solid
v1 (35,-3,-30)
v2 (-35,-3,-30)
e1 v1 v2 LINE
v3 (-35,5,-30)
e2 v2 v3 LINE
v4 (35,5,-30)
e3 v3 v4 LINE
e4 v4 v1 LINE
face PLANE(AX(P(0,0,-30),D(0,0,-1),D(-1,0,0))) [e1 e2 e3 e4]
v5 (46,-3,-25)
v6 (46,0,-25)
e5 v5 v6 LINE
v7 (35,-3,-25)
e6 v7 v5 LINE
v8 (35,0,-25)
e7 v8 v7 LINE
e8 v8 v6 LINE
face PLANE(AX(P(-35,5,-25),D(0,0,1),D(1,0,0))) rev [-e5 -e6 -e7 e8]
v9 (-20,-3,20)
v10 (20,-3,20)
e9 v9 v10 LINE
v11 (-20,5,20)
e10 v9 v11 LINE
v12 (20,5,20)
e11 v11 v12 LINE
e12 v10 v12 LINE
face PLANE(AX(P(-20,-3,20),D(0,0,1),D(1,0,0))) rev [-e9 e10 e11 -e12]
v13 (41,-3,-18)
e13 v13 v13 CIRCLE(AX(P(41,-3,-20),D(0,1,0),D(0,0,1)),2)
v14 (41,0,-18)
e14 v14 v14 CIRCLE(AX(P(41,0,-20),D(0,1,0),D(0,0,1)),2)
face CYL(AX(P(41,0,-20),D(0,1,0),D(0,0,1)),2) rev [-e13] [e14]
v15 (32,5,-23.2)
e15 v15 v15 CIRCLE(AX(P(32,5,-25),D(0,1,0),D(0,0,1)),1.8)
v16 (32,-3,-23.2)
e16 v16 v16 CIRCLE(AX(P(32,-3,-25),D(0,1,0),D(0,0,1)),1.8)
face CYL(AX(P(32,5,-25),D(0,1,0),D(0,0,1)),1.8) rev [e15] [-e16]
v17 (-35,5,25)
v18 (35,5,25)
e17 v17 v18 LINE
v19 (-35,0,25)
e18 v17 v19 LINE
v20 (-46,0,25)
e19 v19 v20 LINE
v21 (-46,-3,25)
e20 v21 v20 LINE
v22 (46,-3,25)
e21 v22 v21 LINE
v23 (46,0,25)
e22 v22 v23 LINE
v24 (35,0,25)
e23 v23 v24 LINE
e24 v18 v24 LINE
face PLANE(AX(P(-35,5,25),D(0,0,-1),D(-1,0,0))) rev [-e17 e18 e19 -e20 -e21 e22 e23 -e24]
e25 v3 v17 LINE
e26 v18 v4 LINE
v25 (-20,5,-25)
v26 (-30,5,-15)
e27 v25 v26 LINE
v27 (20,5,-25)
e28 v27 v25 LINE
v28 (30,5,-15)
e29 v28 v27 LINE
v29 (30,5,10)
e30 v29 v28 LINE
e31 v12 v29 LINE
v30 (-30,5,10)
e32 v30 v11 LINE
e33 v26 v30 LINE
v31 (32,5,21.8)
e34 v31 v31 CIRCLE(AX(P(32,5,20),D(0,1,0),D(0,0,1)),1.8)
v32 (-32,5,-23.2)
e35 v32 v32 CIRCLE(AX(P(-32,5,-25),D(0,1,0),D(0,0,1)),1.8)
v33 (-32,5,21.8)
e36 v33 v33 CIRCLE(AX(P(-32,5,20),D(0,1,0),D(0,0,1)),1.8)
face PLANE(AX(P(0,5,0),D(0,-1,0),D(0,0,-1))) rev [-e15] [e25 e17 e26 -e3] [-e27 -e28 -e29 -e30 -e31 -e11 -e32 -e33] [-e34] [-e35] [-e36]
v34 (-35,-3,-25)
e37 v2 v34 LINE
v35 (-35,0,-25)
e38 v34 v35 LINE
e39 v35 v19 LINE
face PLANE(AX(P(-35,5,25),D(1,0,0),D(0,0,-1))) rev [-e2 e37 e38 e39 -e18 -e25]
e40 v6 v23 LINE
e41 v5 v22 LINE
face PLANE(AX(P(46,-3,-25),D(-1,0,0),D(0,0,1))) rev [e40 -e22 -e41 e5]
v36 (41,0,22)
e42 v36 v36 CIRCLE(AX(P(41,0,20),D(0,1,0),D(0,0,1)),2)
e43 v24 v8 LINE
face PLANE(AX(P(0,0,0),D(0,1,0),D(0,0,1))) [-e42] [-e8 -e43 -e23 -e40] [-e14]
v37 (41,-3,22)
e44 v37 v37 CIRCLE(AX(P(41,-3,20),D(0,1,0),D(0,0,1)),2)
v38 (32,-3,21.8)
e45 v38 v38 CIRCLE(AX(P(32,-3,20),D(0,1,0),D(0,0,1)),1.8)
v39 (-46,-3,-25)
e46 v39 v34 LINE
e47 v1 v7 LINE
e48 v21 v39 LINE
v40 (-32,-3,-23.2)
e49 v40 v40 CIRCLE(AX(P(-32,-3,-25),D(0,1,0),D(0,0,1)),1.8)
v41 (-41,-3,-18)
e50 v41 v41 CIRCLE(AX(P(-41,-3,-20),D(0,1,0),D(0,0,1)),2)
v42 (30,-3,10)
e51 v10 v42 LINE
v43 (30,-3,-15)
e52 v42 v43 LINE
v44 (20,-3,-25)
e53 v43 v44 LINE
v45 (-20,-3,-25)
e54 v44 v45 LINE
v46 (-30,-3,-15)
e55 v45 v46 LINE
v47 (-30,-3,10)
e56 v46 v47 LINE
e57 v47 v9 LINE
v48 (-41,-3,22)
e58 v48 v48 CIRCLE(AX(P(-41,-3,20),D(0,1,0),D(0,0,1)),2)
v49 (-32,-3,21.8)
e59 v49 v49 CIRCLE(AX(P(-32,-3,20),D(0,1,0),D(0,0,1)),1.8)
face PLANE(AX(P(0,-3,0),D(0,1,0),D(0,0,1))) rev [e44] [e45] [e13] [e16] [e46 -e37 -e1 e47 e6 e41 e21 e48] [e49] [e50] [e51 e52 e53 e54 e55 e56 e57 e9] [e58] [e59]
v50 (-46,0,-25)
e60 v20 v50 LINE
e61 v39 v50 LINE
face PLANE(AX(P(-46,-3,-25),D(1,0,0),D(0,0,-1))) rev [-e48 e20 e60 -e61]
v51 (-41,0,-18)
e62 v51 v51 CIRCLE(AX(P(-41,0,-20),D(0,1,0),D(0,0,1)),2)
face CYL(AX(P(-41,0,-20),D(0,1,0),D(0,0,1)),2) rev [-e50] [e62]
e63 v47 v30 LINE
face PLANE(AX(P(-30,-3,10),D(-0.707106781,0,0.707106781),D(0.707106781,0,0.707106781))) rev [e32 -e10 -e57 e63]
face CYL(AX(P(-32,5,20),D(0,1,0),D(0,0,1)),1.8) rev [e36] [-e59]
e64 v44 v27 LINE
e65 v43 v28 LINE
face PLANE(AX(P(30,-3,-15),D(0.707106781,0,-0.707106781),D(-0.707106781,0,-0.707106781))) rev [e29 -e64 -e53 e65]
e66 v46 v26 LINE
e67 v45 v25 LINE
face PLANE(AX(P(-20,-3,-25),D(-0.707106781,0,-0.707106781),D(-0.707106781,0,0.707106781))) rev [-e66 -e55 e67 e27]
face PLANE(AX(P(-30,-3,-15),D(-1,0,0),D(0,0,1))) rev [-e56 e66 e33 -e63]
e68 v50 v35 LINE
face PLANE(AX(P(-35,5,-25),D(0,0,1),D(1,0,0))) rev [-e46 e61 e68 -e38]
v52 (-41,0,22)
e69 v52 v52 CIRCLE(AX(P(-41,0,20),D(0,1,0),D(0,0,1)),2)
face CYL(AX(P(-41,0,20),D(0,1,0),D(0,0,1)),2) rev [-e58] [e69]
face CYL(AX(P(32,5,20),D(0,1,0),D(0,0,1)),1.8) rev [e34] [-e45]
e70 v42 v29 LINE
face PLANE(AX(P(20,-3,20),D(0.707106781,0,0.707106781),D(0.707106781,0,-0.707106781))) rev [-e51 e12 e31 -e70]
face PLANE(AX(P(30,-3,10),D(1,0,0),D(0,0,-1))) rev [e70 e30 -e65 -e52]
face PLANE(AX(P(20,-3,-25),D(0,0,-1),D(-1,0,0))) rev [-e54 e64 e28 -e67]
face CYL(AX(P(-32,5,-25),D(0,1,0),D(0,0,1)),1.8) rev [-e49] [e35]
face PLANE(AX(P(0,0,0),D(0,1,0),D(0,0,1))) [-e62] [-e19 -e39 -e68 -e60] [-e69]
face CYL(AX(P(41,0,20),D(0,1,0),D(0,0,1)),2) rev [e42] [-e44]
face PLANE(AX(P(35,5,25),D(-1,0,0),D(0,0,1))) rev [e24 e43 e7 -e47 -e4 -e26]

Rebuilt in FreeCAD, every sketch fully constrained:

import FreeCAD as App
import Part
import Sketcher

V = App.Vector
Q = App.Units.Quantity

doc = App.newDocument("Part")
body = doc.addObject("PartDesign::Body", "Body")

# Sketch on XZ plane
sketch1 = body.newObject("Sketcher::SketchObject", "Sketch")
sketch1.AttachmentSupport = (doc.getObject("XZ_Plane"), [""])
sketch1.MapMode = "FlatFace"
sketch1.addGeometry([
    Part.LineSegment(V(-35, -25, 0), V(-35, 25, 0)),
    Part.LineSegment(V(-35, 25, 0), V(35, 25, 0)),
    Part.LineSegment(V(35, 25, 0), V(35, -25, 0)),
    Part.LineSegment(V(35, -25, 0), V(-35, -25, 0)),
], False)
sketch1.addConstraint([
    Sketcher.Constraint("Coincident", 0, 2, 1, 1),
    Sketcher.Constraint("Coincident", 1, 2, 2, 1),
    Sketcher.Constraint("Coincident", 2, 2, 3, 1),
    Sketcher.Constraint("Coincident", 3, 2, 0, 1),
    Sketcher.Constraint("Vertical", 0),
    Sketcher.Constraint("Horizontal", 1),
    Sketcher.Constraint("Vertical", 2),
    Sketcher.Constraint("Horizontal", 3),
    Sketcher.Constraint("Symmetric", 0, 2, 2, 2, -1, 1),
    Sketcher.Constraint("DistanceX", 1, 1, 1, 2, Q("70 mm")),
    Sketcher.Constraint("DistanceY", 0, 1, 0, 2, Q("50 mm")),
])
pad1 = body.newObject("PartDesign::Pad", "Pad")
pad1.Profile = sketch1
pad1.Length = 5
pad1.Reversed = True

# Sketch on XZ plane
sketch2 = body.newObject("Sketcher::SketchObject", "Sketch001")
sketch2.AttachmentSupport = (doc.getObject("XZ_Plane"), [""])
sketch2.MapMode = "FlatFace"
sketch2.addGeometry([
    Part.LineSegment(V(-46, 25, 0), V(-46, -25, 0)),
    Part.LineSegment(V(-46, -25, 0), V(46, -25, 0)),
    Part.LineSegment(V(46, -25, 0), V(46, 25, 0)),
    Part.LineSegment(V(46, 25, 0), V(-46, 25, 0)),
], False)
sketch2.addConstraint([
    Sketcher.Constraint("Coincident", 0, 2, 1, 1),
    Sketcher.Constraint("Coincident", 1, 2, 2, 1),
    Sketcher.Constraint("Coincident", 2, 2, 3, 1),
    Sketcher.Constraint("Coincident", 3, 2, 0, 1),
    Sketcher.Constraint("Vertical", 0),
    Sketcher.Constraint("Horizontal", 1),
    Sketcher.Constraint("Vertical", 2),
    Sketcher.Constraint("Horizontal", 3),
    Sketcher.Constraint("Symmetric", 0, 2, 2, 2, -1, 1),
    Sketcher.Constraint("DistanceX", 1, 1, 1, 2, Q("92 mm")),
    Sketcher.Constraint("DistanceY", 0, 2, 0, 1, Q("50 mm")),
])
pad2 = body.newObject("PartDesign::Pad", "Pad001")
pad2.Profile = sketch2
pad2.Length = 3

# Sketch on XZ plane
sketch3 = body.newObject("Sketcher::SketchObject", "Sketch002")
sketch3.AttachmentSupport = (doc.getObject("XZ_Plane"), [""])
sketch3.MapMode = "FlatFace"
sketch3.addGeometry([
    Part.Circle(V(-41, -20, 0), V(0, 0, 1), 2),
    Part.Circle(V(-41, 20, 0), V(0, 0, 1), 2),
    Part.Circle(V(41, -20, 0), V(0, 0, 1), 2),
    Part.Circle(V(41, 20, 0), V(0, 0, 1), 2),
], False)
sketch3.addConstraint([
    Sketcher.Constraint("Equal", 0, 1),
    Sketcher.Constraint("Equal", 1, 2),
    Sketcher.Constraint("Equal", 2, 3),
    Sketcher.Constraint("Symmetric", 1, 3, 2, 3, -1, 1),
    Sketcher.Constraint("Symmetric", 0, 3, 3, 3, -1, 1),
    Sketcher.Constraint("Symmetric", 0, 3, 2, 3, -2),
    Sketcher.Constraint("Diameter", 0, Q("4 mm")),
    Sketcher.Constraint("DistanceX", 0, 3, -1, 1, Q("41 mm")),
    Sketcher.Constraint("DistanceY", 0, 3, -1, 1, Q("20 mm")),
])
doc.recompute()
hole = body.newObject("PartDesign::Hole", "Hole")
hole.Profile = sketch3
hole.ThreadType = "None"
hole.Diameter = 4
hole.DepthType = "Dimension"
hole.Depth = 10
hole.DrillPoint = "Angled"
hole.DrillPointAngle = 118
hole.Reversed = True

# Sketch on XY plane
sketch4 = body.newObject("Sketcher::SketchObject", "Sketch003")
sketch4.AttachmentSupport = (doc.getObject("XY_Plane"), [""])
sketch4.MapMode = "FlatFace"
sketch4.AttachmentOffset = App.Placement(V(0, 0, -25), App.Rotation())
sketch4.addGeometry([
    Part.LineSegment(V(35, 5, 0), V(35, -3, 0)),
    Part.LineSegment(V(35, -3, 0), V(-35, -3, 0)),
    Part.LineSegment(V(-35, -3, 0), V(-35, 5, 0)),
    Part.LineSegment(V(-35, 5, 0), V(35, 5, 0)),
], False)
sketch4.addConstraint([
    Sketcher.Constraint("Coincident", 0, 2, 1, 1),
    Sketcher.Constraint("Coincident", 1, 2, 2, 1),
    Sketcher.Constraint("Coincident", 2, 2, 3, 1),
    Sketcher.Constraint("Coincident", 3, 2, 0, 1),
    Sketcher.Constraint("Vertical", 0),
    Sketcher.Constraint("Horizontal", 1),
    Sketcher.Constraint("Vertical", 2),
    Sketcher.Constraint("Horizontal", 3),
    Sketcher.Constraint("DistanceX", 1, 2, 1, 1, Q("70 mm")),
    Sketcher.Constraint("DistanceY", 0, 2, 0, 1, Q("8 mm")),
    Sketcher.Constraint("DistanceX", -1, 1, 0, 2, Q("35 mm")),
    Sketcher.Constraint("DistanceY", 0, 2, -1, 1, Q("3 mm")),
])
pad3 = body.newObject("PartDesign::Pad", "Pad002")
pad3.Profile = sketch4
pad3.Length = 5
pad3.Reversed = True

# Sketch on XZ plane
sketch5 = body.newObject("Sketcher::SketchObject", "Sketch004")
sketch5.AttachmentSupport = (doc.getObject("XZ_Plane"), [""])
sketch5.MapMode = "FlatFace"
sketch5.AttachmentOffset = App.Placement(V(0, 0, -5), App.Rotation())
sketch5.addGeometry([
    Part.Circle(V(32, 20, 0), V(0, 0, 1), 1.8),
    Part.Circle(V(-32, -25, 0), V(0, 0, 1), 1.8),
    Part.Circle(V(32, -25, 0), V(0, 0, 1), 1.8),
    Part.Circle(V(-32, 20, 0), V(0, 0, 1), 1.8),
], False)
sketch5.addConstraint([
    Sketcher.Constraint("Equal", 0, 1),
    Sketcher.Constraint("Equal", 1, 2),
    Sketcher.Constraint("Equal", 2, 3),
    Sketcher.Constraint("Symmetric", 1, 3, 2, 3, -2),
    Sketcher.Constraint("Symmetric", 0, 3, 3, 3, -2),
    Sketcher.Constraint("Vertical", 0, 3, 2, 3),
    Sketcher.Constraint("Diameter", 0, Q("3.6 mm")),
    Sketcher.Constraint("DistanceX", -1, 1, 0, 3, Q("32 mm")),
    Sketcher.Constraint("DistanceY", -1, 1, 0, 3, Q("20 mm")),
    Sketcher.Constraint("DistanceY", 1, 3, -1, 1, Q("25 mm")),
])
doc.recompute()
hole2 = body.newObject("PartDesign::Hole", "Hole001")
hole2.Profile = sketch5
hole2.ThreadType = "None"
hole2.Diameter = 3.6
hole2.DepthType = "Dimension"
hole2.Depth = 10
hole2.DrillPoint = "Angled"
hole2.DrillPointAngle = 118
hole2.Reversed = True

# Sketch on XZ plane
sketch6 = body.newObject("Sketcher::SketchObject", "Sketch005")
sketch6.AttachmentSupport = (doc.getObject("XZ_Plane"), [""])
sketch6.MapMode = "FlatFace"
sketch6.AttachmentOffset = App.Placement(V(0, 0, -5), App.Rotation())
sketch6.addGeometry([
    Part.LineSegment(V(20, 20, 0), V(30, 10, 0)),  # 0
    Part.LineSegment(V(30, 10, 0), V(30, -15, 0)),  # 1
    Part.LineSegment(V(30, -15, 0), V(20, -25, 0)),  # 2
    Part.LineSegment(V(20, -25, 0), V(-20, -25, 0)),  # 3
    Part.LineSegment(V(-20, -25, 0), V(-30, -15, 0)),  # 4
    Part.LineSegment(V(-30, -15, 0), V(-30, 10, 0)),  # 5
    Part.LineSegment(V(-30, 10, 0), V(-20, 20, 0)),  # 6
    Part.LineSegment(V(-20, 20, 0), V(20, 20, 0)),  # 7
], False)
sketch6.addConstraint([
    Sketcher.Constraint("Coincident", 0, 2, 1, 1),
    Sketcher.Constraint("Coincident", 1, 2, 2, 1),
    Sketcher.Constraint("Coincident", 2, 2, 3, 1),
    Sketcher.Constraint("Coincident", 3, 2, 4, 1),
    Sketcher.Constraint("Coincident", 4, 2, 5, 1),
    Sketcher.Constraint("Coincident", 5, 2, 6, 1),
    Sketcher.Constraint("Coincident", 6, 2, 7, 1),
    Sketcher.Constraint("Coincident", 7, 2, 0, 1),
    Sketcher.Constraint("Vertical", 1),
    Sketcher.Constraint("Horizontal", 3),
    Sketcher.Constraint("Vertical", 5),
    Sketcher.Constraint("Horizontal", 7),
    Sketcher.Constraint("Symmetric", 1, 2, 4, 2, -2),
    Sketcher.Constraint("Perpendicular", 0, 2),
    Sketcher.Constraint("Perpendicular", 2, 4),
    Sketcher.Constraint("Perpendicular", 4, 6),
    Sketcher.Constraint("Horizontal", 0, 2, 5, 2),
    Sketcher.Constraint("Vertical", 3, 2, 6, 2),
    Sketcher.Constraint("Vertical", 2, 2, 7, 2),
    Sketcher.Constraint("DistanceX", 3, 2, 3, 1, Q("40 mm")),
    Sketcher.Constraint("DistanceY", 1, 2, 1, 1, Q("25 mm")),
    Sketcher.Constraint("DistanceX", -1, 1, 0, 2, Q("30 mm")),
    Sketcher.Constraint("DistanceY", -1, 1, 0, 2, Q("10 mm")),
])
pocket1 = body.newObject("PartDesign::Pocket", "Pocket")
pocket1.Profile = sketch6
pocket1.Type = "ThroughAll"
pocket1.Reversed = True

doc.recompute()
